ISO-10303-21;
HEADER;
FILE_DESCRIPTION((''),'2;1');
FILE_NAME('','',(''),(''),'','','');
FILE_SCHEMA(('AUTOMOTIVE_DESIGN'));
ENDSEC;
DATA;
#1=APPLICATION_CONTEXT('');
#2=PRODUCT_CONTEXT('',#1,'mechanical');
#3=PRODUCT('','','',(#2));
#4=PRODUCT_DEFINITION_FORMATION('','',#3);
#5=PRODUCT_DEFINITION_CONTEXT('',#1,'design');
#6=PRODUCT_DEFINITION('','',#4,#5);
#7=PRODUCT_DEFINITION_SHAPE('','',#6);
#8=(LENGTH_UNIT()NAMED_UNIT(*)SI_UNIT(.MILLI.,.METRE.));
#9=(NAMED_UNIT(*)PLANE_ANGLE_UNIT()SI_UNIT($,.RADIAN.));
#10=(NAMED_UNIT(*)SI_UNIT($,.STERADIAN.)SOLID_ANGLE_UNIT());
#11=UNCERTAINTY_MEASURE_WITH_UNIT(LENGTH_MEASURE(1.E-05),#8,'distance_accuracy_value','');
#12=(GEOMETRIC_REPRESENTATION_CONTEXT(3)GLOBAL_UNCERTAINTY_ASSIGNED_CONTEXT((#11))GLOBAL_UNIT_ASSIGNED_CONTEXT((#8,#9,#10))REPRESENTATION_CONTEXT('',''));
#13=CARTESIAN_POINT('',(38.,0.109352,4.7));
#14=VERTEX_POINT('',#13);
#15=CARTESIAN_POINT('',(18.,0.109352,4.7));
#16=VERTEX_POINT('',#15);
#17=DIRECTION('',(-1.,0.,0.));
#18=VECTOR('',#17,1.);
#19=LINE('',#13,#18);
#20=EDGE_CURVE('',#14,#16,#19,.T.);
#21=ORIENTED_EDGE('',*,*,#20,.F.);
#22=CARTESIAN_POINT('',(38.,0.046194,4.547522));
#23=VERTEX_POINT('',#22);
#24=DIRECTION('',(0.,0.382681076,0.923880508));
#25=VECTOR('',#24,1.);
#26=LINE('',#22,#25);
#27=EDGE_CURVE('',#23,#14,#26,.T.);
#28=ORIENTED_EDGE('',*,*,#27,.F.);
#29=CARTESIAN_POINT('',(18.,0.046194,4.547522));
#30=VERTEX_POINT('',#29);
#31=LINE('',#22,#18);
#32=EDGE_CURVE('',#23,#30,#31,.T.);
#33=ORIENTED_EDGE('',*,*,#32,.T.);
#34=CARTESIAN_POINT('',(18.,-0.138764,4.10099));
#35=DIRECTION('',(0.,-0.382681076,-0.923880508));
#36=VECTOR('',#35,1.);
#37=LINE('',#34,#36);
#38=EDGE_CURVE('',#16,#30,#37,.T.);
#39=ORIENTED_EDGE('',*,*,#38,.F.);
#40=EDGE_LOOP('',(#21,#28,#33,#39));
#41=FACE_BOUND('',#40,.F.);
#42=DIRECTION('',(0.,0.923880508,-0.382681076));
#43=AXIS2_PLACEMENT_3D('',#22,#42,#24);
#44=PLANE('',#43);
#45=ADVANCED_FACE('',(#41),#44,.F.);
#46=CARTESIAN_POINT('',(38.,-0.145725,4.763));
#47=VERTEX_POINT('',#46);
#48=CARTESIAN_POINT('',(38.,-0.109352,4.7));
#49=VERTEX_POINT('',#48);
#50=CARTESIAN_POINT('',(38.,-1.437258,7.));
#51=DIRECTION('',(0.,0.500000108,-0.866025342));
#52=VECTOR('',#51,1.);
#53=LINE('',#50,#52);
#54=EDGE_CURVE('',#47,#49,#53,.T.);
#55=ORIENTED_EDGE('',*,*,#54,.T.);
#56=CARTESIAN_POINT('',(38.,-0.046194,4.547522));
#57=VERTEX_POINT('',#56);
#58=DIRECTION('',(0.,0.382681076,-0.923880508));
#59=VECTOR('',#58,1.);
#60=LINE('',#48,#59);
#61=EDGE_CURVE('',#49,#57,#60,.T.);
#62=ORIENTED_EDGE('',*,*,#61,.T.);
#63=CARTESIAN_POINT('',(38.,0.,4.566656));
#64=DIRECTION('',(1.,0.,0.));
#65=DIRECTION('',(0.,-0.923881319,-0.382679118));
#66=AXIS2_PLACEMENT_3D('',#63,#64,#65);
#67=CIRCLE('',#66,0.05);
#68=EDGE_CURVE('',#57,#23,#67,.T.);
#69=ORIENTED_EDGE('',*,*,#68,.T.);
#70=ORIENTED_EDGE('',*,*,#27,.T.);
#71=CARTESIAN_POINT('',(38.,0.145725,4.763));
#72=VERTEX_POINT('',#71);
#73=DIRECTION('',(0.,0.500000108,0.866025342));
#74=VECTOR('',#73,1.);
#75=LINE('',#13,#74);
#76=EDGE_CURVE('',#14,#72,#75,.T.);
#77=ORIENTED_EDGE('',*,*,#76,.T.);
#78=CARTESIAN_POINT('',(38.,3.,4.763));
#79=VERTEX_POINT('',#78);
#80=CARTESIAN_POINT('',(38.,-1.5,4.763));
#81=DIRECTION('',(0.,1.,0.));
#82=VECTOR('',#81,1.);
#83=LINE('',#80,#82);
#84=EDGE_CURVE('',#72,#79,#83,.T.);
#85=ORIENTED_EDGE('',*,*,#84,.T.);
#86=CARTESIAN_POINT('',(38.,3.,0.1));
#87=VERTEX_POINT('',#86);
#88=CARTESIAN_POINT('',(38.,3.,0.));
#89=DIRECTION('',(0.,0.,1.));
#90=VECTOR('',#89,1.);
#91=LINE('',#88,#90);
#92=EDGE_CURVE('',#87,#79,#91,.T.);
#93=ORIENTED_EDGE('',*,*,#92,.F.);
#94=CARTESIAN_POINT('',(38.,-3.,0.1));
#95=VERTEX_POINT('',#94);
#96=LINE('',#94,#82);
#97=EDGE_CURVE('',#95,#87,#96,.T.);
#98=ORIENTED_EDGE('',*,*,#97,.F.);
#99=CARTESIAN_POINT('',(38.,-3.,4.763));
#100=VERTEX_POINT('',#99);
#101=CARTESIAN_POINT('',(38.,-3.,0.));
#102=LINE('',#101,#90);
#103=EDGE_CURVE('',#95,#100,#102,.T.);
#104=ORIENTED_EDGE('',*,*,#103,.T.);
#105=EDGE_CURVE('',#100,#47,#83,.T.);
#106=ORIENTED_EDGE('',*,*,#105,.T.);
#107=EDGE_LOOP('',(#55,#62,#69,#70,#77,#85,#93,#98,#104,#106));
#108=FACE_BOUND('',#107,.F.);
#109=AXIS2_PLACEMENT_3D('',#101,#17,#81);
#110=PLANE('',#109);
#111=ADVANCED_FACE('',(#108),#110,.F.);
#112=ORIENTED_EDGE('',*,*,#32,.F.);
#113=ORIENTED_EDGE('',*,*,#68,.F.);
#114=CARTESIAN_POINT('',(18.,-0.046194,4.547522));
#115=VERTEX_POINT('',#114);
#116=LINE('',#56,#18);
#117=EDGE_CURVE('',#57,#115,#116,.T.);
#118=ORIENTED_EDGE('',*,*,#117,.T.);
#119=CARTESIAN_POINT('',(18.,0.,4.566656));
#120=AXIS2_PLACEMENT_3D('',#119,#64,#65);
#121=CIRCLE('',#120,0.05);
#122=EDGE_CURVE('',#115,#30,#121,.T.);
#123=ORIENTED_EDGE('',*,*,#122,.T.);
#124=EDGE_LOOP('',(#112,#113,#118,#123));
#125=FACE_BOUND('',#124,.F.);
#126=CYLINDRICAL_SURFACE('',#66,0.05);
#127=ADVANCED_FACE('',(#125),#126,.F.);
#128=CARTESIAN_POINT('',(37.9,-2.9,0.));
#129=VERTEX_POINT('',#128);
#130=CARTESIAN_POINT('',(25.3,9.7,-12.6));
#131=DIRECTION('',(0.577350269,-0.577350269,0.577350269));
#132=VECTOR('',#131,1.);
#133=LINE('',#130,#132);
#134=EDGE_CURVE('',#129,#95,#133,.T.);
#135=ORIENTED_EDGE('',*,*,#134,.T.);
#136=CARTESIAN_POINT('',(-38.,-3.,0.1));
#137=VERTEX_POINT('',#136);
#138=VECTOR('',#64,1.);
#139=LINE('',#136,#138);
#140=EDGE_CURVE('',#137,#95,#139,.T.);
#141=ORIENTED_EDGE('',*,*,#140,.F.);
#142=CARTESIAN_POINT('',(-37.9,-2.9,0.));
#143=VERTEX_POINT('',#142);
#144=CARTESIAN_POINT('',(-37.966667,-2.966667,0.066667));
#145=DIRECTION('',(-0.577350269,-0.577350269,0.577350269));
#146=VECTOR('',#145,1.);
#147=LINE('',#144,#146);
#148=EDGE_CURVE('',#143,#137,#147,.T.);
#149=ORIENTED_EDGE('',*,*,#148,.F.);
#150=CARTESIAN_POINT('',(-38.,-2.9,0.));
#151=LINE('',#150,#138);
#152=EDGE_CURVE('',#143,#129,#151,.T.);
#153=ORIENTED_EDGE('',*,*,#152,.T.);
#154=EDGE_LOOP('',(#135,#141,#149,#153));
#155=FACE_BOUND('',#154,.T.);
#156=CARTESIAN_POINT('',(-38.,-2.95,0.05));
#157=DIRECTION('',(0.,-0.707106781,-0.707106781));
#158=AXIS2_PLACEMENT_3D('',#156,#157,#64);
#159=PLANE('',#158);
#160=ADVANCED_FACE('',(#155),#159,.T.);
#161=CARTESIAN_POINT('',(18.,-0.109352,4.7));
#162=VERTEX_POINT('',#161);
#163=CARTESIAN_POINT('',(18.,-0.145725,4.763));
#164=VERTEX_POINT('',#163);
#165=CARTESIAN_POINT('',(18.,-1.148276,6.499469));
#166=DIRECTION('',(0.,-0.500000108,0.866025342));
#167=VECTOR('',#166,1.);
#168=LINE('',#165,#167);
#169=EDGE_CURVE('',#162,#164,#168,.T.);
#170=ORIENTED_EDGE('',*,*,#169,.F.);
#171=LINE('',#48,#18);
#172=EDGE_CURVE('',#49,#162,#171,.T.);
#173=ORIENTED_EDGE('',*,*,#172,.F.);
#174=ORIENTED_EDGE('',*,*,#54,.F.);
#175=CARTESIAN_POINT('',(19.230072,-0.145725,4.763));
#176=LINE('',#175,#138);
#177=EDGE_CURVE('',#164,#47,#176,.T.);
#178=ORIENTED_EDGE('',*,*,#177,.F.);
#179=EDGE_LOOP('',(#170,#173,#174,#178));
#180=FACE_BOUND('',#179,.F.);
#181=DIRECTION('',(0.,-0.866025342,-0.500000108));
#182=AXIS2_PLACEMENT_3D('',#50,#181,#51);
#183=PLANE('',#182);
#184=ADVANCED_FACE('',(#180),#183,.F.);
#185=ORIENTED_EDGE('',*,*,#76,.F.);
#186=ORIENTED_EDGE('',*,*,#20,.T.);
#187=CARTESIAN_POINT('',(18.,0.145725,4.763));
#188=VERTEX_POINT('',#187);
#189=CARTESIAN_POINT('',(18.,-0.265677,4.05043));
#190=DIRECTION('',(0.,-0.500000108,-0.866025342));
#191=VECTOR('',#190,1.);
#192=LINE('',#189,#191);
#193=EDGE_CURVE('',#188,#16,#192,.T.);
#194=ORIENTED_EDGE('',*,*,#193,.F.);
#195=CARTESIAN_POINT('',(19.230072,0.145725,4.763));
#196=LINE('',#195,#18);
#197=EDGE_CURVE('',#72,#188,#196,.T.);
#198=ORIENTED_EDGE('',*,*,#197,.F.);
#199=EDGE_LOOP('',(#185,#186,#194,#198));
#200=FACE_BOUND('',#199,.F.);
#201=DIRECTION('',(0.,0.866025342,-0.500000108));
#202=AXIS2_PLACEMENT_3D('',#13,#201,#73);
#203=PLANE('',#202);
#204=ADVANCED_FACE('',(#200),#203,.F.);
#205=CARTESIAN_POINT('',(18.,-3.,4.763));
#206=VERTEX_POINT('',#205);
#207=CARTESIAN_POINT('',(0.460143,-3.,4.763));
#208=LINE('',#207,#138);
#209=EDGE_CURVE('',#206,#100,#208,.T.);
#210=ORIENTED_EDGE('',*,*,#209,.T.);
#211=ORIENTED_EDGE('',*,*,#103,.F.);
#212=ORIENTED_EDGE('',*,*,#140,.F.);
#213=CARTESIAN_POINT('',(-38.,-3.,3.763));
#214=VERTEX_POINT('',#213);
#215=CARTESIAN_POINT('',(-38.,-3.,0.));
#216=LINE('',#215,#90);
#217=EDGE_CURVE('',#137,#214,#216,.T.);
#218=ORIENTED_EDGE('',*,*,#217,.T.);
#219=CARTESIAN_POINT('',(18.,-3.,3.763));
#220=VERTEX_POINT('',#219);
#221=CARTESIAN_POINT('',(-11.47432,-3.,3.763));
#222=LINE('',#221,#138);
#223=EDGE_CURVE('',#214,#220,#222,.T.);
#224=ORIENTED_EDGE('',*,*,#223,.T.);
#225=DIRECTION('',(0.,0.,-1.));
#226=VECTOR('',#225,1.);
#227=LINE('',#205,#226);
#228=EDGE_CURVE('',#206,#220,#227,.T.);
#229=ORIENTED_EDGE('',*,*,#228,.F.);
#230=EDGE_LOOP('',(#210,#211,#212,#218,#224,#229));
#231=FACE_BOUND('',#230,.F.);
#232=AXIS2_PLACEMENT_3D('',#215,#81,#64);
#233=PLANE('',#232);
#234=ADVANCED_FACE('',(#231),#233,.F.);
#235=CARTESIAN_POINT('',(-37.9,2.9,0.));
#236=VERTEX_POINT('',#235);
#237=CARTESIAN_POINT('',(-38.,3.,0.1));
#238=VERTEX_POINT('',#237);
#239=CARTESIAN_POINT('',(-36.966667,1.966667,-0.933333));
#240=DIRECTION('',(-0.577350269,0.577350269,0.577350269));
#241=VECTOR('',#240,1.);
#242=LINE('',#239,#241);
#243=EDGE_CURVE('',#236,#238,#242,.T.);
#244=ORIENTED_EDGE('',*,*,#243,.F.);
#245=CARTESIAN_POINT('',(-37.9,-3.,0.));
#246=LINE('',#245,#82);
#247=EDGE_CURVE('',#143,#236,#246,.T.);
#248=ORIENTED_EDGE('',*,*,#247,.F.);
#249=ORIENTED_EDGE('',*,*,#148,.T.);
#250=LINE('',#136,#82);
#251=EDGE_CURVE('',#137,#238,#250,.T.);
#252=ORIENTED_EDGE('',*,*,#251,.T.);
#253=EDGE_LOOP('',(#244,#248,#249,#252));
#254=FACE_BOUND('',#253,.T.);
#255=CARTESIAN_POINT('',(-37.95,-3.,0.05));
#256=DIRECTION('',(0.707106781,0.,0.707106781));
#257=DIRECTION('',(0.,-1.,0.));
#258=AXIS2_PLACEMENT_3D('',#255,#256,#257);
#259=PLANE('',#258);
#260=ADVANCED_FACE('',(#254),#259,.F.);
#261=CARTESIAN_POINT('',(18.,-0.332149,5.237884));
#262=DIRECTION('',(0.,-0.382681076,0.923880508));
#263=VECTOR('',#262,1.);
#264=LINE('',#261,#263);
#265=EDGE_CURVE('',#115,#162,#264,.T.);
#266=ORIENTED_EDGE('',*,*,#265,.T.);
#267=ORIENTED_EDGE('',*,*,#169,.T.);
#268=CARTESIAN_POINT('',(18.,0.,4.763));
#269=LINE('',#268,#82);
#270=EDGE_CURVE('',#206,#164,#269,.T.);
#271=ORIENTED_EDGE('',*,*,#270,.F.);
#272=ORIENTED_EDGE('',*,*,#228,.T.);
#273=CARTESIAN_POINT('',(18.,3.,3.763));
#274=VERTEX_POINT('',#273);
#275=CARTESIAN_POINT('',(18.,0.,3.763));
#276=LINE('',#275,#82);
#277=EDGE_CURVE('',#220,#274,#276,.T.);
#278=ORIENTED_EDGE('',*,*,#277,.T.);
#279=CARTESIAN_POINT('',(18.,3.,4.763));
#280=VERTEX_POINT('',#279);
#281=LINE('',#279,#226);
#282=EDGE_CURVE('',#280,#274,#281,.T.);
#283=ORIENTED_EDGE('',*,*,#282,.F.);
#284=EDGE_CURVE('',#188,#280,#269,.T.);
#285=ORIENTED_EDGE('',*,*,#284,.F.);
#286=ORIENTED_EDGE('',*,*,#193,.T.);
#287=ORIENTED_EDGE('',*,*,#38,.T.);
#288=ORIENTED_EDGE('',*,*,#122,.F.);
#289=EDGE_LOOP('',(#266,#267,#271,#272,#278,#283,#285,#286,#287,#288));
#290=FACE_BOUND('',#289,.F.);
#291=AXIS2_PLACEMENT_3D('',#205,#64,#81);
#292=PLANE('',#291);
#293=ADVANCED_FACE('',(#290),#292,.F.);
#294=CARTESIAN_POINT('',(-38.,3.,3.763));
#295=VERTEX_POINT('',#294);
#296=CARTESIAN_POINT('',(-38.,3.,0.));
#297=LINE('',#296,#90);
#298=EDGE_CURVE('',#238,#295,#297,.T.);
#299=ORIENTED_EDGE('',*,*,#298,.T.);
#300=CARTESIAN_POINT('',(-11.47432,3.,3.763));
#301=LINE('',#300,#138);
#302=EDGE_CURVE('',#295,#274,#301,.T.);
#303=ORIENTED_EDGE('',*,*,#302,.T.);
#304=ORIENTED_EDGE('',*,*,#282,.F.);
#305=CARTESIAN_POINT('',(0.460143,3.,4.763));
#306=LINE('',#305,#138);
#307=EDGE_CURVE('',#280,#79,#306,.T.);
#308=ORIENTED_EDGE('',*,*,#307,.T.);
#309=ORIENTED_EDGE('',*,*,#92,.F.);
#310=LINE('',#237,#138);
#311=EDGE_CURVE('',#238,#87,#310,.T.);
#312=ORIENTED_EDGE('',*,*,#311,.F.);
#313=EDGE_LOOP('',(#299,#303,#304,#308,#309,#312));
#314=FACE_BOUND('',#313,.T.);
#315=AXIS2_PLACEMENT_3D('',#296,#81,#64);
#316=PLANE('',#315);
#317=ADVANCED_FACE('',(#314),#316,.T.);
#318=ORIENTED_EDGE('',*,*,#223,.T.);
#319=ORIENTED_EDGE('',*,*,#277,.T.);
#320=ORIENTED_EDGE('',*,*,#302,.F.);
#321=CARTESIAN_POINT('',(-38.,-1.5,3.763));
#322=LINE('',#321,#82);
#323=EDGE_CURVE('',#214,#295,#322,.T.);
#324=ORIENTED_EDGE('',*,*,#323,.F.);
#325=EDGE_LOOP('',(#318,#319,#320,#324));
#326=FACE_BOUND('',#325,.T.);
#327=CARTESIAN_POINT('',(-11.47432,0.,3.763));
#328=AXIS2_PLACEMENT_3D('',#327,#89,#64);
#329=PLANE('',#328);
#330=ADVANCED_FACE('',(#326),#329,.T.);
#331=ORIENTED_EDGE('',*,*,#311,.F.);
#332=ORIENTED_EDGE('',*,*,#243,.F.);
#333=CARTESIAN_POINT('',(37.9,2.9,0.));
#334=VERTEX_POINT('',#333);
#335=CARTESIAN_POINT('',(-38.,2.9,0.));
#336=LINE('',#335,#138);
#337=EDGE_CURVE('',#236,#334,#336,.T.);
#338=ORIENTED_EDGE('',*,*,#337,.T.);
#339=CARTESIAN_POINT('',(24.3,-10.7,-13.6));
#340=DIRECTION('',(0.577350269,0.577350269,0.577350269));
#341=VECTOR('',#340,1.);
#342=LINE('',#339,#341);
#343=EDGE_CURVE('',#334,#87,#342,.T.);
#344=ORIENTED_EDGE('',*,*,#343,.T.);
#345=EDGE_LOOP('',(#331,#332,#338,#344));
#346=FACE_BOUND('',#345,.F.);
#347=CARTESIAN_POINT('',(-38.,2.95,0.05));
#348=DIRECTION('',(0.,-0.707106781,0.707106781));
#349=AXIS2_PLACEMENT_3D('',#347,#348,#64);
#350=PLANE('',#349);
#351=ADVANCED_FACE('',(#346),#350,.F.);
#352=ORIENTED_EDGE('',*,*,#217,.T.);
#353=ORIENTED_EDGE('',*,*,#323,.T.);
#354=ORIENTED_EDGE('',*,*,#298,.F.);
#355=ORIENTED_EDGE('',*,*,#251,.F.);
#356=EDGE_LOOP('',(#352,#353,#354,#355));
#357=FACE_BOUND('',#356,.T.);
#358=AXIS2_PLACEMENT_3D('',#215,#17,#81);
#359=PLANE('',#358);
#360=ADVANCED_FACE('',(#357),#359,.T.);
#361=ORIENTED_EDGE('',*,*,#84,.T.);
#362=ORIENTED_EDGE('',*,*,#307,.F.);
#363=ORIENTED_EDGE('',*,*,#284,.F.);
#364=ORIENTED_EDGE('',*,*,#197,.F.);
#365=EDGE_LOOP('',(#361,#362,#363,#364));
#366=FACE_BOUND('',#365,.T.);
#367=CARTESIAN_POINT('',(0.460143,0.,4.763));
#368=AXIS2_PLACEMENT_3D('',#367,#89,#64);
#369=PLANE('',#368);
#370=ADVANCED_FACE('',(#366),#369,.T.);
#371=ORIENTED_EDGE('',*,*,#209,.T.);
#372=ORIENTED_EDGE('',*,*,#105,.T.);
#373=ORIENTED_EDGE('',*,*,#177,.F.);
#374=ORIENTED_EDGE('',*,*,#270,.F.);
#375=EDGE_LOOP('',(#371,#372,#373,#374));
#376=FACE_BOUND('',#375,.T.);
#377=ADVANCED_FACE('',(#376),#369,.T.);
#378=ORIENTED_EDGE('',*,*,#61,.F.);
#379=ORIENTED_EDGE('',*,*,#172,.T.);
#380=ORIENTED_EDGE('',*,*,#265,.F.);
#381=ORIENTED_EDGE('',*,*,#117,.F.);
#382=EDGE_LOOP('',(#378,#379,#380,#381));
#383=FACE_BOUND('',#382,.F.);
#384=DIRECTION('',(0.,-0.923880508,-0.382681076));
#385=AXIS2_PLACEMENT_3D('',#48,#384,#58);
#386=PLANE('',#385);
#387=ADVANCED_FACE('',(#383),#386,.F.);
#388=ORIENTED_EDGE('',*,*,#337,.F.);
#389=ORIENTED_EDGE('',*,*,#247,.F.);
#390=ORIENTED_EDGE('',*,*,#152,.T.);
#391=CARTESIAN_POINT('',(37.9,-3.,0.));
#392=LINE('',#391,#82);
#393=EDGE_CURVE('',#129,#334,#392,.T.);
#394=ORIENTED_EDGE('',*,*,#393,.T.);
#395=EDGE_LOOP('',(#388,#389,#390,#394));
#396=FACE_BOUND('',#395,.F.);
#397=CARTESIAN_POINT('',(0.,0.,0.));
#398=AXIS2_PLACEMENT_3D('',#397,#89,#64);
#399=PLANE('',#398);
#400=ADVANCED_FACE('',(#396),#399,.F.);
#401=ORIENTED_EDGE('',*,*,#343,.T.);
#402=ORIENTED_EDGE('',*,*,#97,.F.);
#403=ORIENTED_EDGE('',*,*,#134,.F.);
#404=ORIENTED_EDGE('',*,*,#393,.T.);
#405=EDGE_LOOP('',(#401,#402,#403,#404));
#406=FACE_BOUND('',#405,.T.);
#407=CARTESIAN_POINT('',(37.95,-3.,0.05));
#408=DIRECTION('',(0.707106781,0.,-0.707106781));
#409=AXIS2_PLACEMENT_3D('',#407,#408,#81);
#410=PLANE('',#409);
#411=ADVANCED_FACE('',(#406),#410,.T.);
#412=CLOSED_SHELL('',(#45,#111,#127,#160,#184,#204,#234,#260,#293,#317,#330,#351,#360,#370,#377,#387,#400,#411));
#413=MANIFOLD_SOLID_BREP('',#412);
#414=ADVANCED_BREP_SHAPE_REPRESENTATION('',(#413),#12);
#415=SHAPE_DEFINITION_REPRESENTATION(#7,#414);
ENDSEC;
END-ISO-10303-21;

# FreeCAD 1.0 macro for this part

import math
import FreeCAD as App
import Part
import Sketcher

V = App.Vector
Q = App.Units.Quantity


def edges_at(feature, points):
    """Names of the edges that pass closest to the given points."""
    edges = feature.Shape.Edges
    near = lambda p: min(range(len(edges)), key=lambda i: edges[i].distToShape(Part.Vertex(*p))[0])
    return sorted({f"Edge{near(p) + 1}" for p in points})


def add_polygon(sketch, points):
    """Adds a closed chain of lines whose ends are joined by coincident constraints."""
    first, n = sketch.GeometryCount, len(points)
    for a, b in zip(points, points[1:] + points[:1]):
        sketch.addGeometry(Part.LineSegment(App.Vector(*a, 0), App.Vector(*b, 0)), False)
    for i in range(n):
        sketch.addConstraint(Sketcher.Constraint("Coincident", first + i, 2, first + (i + 1) % n, 1))

doc = App.newDocument("Part")
params = doc.addObject("Spreadsheet::Sheet", "Params")
for row, (alias, value) in enumerate([
    ("sketch1_width", "76 mm"),
    ("sketch1_height", "6 mm"),
    ("pad1_length", "7 mm"),
    ("sketch2_height", "6 mm"),
    ("pocket1_length", "2.237 mm"),
    ("sketch3_radius", "0.05 mm"),
    ("chamfer_size", "0.1 mm"),
    ("sketch4_height", "6 mm"),
    ("pocket3_length", "1 mm"),
], start=1):
    params.set(f"A{row}", alias)
    params.set(f"B{row}", "=" + value)
    params.setAlias(f"B{row}", alias)

body = doc.addObject("PartDesign::Body", "Body")

# Sketch on XY plane
sketch1 = body.newObject("Sketcher::SketchObject", "Sketch")
sketch1.AttachmentSupport = (doc.getObject("XY_Plane"), [""])
sketch1.MapMode = "FlatFace"
add_polygon(sketch1, [(-38, 3), (-38, -3), (38, -3), (38, 3)])  # lines 0-3
sketch1.addConstraint([
    Sketcher.Constraint("Vertical", 0),
    Sketcher.Constraint("Horizontal", 1),
    Sketcher.Constraint("Vertical", 2),
    Sketcher.Constraint("Horizontal", 3),
    Sketcher.Constraint("Symmetric", 0, 2, 2, 2, -1, 1),
    Sketcher.Constraint("DistanceX", 1, 1, 1, 2, Q("76 mm")),
    Sketcher.Constraint("DistanceY", 0, 2, 0, 1, Q("6 mm")),
])
sketch1.setExpression("Constraints[9]", "Params.sketch1_width")
sketch1.setExpression("Constraints[10]", "Params.sketch1_height")
pad1 = body.newObject("PartDesign::Pad", "Pad")
pad1.Profile = sketch1
pad1.setExpression("Length", "Params.pad1_length")

# Sketch on XY plane
sketch2 = body.newObject("Sketcher::SketchObject", "Sketch001")
sketch2.AttachmentSupport = (doc.getObject("XY_Plane"), [""])
sketch2.MapMode = "FlatFace"
sketch2.AttachmentOffset = App.Placement(V(0, 0, 7), App.Rotation())
add_polygon(sketch2, [(-38, 3), (-38, -3), (38.920286, -3), (38.920286, 3)])  # lines 0-3
sketch2.addConstraint([
    Sketcher.Constraint("Vertical", 0),
    Sketcher.Constraint("Horizontal", 1),
    Sketcher.Constraint("Vertical", 2),
    Sketcher.Constraint("Horizontal", 3),
    Sketcher.Constraint("DistanceY", 0, 2, 0, 1, Q("6 mm")),
    Sketcher.Constraint("DistanceX", 0, 2, -1, 1, Q("38 mm")),
    Sketcher.Constraint("DistanceY", 0, 2, -1, 1, Q("3 mm")),
    Sketcher.Constraint("DistanceX", 1, 1, 1, 2, Q("76.920286 mm")),
])
sketch2.setExpression("Constraints[8]", "Params.sketch2_height")
pocket1 = body.newObject("PartDesign::Pocket", "Pocket")
pocket1.Profile = sketch2
pocket1.setExpression("Length", "Params.pocket1_length")

# Sketch on YZ plane
sketch3 = body.newObject("Sketcher::SketchObject", "Sketch002")
sketch3.AttachmentSupport = (doc.getObject("YZ_Plane"), [""])
sketch3.MapMode = "FlatFace"
sketch3.AttachmentOffset = App.Placement(V(0, 0, 38), App.Rotation())
sketch3.addGeometry([
    Part.LineSegment(V(1.437258, 7, 0), V(-1.437258, 7, 0)),  # 0
    Part.LineSegment(V(-1.437258, 7, 0), V(-0.109352, 4.7, 0)),  # 1
    Part.LineSegment(V(-0.109352, 4.7, 0), V(-0.046194, 4.547522, 0)),  # 2
    Part.ArcOfCircle(Part.Circle(V(0, 4.566656, 0), V(0, 0, 1), 0.05), math.radians(-157.500267), math.radians(-22.499733)),  # 3
    Part.LineSegment(V(0.046194, 4.547522, 0), V(0.109352, 4.7, 0)),  # 4
    Part.LineSegment(V(0.109352, 4.7, 0), V(1.437258, 7, 0)),  # 5
], False)
sketch3.addConstraint([
    Sketcher.Constraint("Coincident", 0, 2, 1, 1),
    Sketcher.Constraint("Coincident", 1, 2, 2, 1),
    Sketcher.Constraint("Coincident", 2, 2, 3, 1),
    Sketcher.Constraint("Coincident", 3, 2, 4, 1),
    Sketcher.Constraint("Coincident", 4, 2, 5, 1),
    Sketcher.Constraint("Coincident", 5, 2, 0, 1),
    Sketcher.Constraint("Horizontal", 0),
    Sketcher.Constraint("Symmetric", 2, 2, 3, 2, -2),
    Sketcher.Constraint("Symmetric", 1, 2, 4, 2, -2),
    Sketcher.Constraint("Equal", 1, 5),
    Sketcher.Constraint("Angle", 1, Q("-59.999993 deg")),
    Sketcher.Constraint("Radius", 3, Q("0.05 mm")),
    Sketcher.Constraint("DistanceY", -1, 1, 0, 2, Q("7 mm")),
    Sketcher.Constraint("DistanceY", -1, 1, 1, 2, Q("4.7 mm")),
    Sketcher.Constraint("Distance", 2, Q("0.165041 mm")),
    Sketcher.Constraint("DistanceX", 0, 2, 0, 1, Q("2.874516 mm")),
    Sketcher.Constraint("DistanceY", -1, 1, 3, 2, Q("4.547522 mm")),
])
sketch3.setExpression("Constraints[11]", "Params.sketch3_radius")
pocket2 = body.newObject("PartDesign::Pocket", "Pocket001")
pocket2.Profile = sketch3
pocket2.Type = "ThroughAll"
doc.recompute()

chamfer = body.newObject("PartDesign::Chamfer", "Chamfer")
chamfer.Base = (pocket2, edges_at(pocket2, [
    (0, -3, 0),
    (38, 0, 0),
    (0, 3, 0),
    (-38, 0, 0),
    (-38, -1.573, 4.763),
    (-38, 1.573, 4.763),
]))
chamfer.setExpression("Size", "Params.chamfer_size")

# Sketch on XY plane
sketch4 = body.newObject("Sketcher::SketchObject", "Sketch003")
sketch4.AttachmentSupport = (doc.getObject("XY_Plane"), [""])
sketch4.MapMode = "FlatFace"
sketch4.AttachmentOffset = App.Placement(V(0, 0, 4.763), App.Rotation())
add_polygon(sketch4, [(-40.94864, 3), (-40.94864, -3), (18, -3), (18, 3)])  # lines 0-3
sketch4.addConstraint([
    Sketcher.Constraint("Vertical", 0),
    Sketcher.Constraint("Horizontal", 1),
    Sketcher.Constraint("Vertical", 2),
    Sketcher.Constraint("Horizontal", 3),
    Sketcher.Constraint("DistanceY", 0, 2, 0, 1, Q("6 mm")),
    Sketcher.Constraint("DistanceY", 0, 2, -1, 1, Q("3 mm")),
    Sketcher.Constraint("DistanceX", -1, 1, 1, 2, Q("18 mm")),
    Sketcher.Constraint("DistanceX", 1, 1, 1, 2, Q("58.94864 mm")),
])
sketch4.setExpression("Constraints[8]", "Params.sketch4_height")
pocket3 = body.newObject("PartDesign::Pocket", "Pocket002")
pocket3.Profile = sketch4
pocket3.setExpression("Length", "Params.pocket3_length")

doc.recompute()
